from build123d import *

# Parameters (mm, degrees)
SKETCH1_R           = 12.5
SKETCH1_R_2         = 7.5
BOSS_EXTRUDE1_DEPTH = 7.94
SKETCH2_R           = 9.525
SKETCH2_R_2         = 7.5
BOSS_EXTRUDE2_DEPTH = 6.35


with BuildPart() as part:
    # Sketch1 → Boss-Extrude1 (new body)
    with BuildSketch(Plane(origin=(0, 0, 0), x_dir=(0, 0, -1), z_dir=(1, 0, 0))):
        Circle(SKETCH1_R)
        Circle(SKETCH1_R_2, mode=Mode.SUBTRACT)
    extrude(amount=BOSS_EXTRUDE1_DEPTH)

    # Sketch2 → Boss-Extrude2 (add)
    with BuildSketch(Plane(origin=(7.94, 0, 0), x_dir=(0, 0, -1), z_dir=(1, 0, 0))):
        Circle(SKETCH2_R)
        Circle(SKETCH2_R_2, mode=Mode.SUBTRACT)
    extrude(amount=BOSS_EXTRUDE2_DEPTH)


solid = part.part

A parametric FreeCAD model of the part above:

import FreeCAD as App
import Part
import Sketcher

V = App.Vector
Q = App.Units.Quantity

doc = App.newDocument("Part")
params = doc.addObject("Spreadsheet::Sheet", "Params")
for row, (alias, value) in enumerate([
    ("sketch1_diameter", "25 mm"),
    ("sketch1_diameter2", "15 mm"),
    ("pad1_length", "7.94 mm"),
    ("sketch2_diameter", "15 mm"),
    ("sketch2_diameter2", "19.05 mm"),
    ("pad2_length", "6.35 mm"),
], start=1):
    params.set(f"A{row}", alias)
    params.set(f"B{row}", "=" + value)
    params.setAlias(f"B{row}", alias)

body = doc.addObject("PartDesign::Body", "Body")

# Sketch on YZ plane
sketch1 = doc.addObject("Sketcher::SketchObject", "Sketch")
body.addObject(sketch1)
sketch1.AttachmentSupport = (doc.YZ_Plane, [""])
sketch1.MapMode = "FlatFace"
sketch1.addGeometry([
    Part.Circle(V(0, 0, 0), V(0, 0, 1), 12),
    Part.Circle(V(0, 0, 0), V(0, 0, 1), 8),
], False)
sketch1.addConstraint([
    Sketcher.Constraint("Coincident", 0, 3, -1, 1),
    Sketcher.Constraint("Coincident", 1, 3, -1, 1),
    Sketcher.Constraint("Diameter", 0, Q("25 mm")),
    Sketcher.Constraint("Diameter", 1, Q("15 mm")),
])
sketch1.setExpression("Constraints[2]", "Params.sketch1_diameter")
sketch1.setExpression("Constraints[3]", "Params.sketch1_diameter2")
pad1 = doc.addObject("PartDesign::Pad", "Pad")
body.addObject(pad1)
pad1.Profile = sketch1
pad1.setExpression("Length", "Params.pad1_length")

# Sketch on YZ plane
sketch2 = doc.addObject("Sketcher::SketchObject", "Sketch001")
body.addObject(sketch2)
sketch2.AttachmentSupport = (doc.YZ_Plane, [""])
sketch2.MapMode = "FlatFace"
sketch2.AttachmentOffset = App.Placement(V(0, 0, 7.94), App.Rotation())
sketch2.addGeometry([
    Part.Circle(V(0, 0, 0), V(0, 0, 1), 10),
    Part.Circle(V(0, 0, 0), V(0, 0, 1), 8),
], False)
sketch2.addConstraint([
    Sketcher.Constraint("Coincident", 0, 3, -1, 1),
    Sketcher.Constraint("Coincident", 1, 3, -1, 1),
    Sketcher.Constraint("Diameter", 1, Q("15 mm")),
    Sketcher.Constraint("Diameter", 0, Q("19.05 mm")),
])
sketch2.setExpression("Constraints[2]", "Params.sketch2_diameter")
sketch2.setExpression("Constraints[3]", "Params.sketch2_diameter2")
pad2 = doc.addObject("PartDesign::Pad", "Pad001")
body.addObject(pad2)
pad2.Profile = sketch2
pad2.setExpression("Length", "Params.pad2_length")

doc.recompute()
